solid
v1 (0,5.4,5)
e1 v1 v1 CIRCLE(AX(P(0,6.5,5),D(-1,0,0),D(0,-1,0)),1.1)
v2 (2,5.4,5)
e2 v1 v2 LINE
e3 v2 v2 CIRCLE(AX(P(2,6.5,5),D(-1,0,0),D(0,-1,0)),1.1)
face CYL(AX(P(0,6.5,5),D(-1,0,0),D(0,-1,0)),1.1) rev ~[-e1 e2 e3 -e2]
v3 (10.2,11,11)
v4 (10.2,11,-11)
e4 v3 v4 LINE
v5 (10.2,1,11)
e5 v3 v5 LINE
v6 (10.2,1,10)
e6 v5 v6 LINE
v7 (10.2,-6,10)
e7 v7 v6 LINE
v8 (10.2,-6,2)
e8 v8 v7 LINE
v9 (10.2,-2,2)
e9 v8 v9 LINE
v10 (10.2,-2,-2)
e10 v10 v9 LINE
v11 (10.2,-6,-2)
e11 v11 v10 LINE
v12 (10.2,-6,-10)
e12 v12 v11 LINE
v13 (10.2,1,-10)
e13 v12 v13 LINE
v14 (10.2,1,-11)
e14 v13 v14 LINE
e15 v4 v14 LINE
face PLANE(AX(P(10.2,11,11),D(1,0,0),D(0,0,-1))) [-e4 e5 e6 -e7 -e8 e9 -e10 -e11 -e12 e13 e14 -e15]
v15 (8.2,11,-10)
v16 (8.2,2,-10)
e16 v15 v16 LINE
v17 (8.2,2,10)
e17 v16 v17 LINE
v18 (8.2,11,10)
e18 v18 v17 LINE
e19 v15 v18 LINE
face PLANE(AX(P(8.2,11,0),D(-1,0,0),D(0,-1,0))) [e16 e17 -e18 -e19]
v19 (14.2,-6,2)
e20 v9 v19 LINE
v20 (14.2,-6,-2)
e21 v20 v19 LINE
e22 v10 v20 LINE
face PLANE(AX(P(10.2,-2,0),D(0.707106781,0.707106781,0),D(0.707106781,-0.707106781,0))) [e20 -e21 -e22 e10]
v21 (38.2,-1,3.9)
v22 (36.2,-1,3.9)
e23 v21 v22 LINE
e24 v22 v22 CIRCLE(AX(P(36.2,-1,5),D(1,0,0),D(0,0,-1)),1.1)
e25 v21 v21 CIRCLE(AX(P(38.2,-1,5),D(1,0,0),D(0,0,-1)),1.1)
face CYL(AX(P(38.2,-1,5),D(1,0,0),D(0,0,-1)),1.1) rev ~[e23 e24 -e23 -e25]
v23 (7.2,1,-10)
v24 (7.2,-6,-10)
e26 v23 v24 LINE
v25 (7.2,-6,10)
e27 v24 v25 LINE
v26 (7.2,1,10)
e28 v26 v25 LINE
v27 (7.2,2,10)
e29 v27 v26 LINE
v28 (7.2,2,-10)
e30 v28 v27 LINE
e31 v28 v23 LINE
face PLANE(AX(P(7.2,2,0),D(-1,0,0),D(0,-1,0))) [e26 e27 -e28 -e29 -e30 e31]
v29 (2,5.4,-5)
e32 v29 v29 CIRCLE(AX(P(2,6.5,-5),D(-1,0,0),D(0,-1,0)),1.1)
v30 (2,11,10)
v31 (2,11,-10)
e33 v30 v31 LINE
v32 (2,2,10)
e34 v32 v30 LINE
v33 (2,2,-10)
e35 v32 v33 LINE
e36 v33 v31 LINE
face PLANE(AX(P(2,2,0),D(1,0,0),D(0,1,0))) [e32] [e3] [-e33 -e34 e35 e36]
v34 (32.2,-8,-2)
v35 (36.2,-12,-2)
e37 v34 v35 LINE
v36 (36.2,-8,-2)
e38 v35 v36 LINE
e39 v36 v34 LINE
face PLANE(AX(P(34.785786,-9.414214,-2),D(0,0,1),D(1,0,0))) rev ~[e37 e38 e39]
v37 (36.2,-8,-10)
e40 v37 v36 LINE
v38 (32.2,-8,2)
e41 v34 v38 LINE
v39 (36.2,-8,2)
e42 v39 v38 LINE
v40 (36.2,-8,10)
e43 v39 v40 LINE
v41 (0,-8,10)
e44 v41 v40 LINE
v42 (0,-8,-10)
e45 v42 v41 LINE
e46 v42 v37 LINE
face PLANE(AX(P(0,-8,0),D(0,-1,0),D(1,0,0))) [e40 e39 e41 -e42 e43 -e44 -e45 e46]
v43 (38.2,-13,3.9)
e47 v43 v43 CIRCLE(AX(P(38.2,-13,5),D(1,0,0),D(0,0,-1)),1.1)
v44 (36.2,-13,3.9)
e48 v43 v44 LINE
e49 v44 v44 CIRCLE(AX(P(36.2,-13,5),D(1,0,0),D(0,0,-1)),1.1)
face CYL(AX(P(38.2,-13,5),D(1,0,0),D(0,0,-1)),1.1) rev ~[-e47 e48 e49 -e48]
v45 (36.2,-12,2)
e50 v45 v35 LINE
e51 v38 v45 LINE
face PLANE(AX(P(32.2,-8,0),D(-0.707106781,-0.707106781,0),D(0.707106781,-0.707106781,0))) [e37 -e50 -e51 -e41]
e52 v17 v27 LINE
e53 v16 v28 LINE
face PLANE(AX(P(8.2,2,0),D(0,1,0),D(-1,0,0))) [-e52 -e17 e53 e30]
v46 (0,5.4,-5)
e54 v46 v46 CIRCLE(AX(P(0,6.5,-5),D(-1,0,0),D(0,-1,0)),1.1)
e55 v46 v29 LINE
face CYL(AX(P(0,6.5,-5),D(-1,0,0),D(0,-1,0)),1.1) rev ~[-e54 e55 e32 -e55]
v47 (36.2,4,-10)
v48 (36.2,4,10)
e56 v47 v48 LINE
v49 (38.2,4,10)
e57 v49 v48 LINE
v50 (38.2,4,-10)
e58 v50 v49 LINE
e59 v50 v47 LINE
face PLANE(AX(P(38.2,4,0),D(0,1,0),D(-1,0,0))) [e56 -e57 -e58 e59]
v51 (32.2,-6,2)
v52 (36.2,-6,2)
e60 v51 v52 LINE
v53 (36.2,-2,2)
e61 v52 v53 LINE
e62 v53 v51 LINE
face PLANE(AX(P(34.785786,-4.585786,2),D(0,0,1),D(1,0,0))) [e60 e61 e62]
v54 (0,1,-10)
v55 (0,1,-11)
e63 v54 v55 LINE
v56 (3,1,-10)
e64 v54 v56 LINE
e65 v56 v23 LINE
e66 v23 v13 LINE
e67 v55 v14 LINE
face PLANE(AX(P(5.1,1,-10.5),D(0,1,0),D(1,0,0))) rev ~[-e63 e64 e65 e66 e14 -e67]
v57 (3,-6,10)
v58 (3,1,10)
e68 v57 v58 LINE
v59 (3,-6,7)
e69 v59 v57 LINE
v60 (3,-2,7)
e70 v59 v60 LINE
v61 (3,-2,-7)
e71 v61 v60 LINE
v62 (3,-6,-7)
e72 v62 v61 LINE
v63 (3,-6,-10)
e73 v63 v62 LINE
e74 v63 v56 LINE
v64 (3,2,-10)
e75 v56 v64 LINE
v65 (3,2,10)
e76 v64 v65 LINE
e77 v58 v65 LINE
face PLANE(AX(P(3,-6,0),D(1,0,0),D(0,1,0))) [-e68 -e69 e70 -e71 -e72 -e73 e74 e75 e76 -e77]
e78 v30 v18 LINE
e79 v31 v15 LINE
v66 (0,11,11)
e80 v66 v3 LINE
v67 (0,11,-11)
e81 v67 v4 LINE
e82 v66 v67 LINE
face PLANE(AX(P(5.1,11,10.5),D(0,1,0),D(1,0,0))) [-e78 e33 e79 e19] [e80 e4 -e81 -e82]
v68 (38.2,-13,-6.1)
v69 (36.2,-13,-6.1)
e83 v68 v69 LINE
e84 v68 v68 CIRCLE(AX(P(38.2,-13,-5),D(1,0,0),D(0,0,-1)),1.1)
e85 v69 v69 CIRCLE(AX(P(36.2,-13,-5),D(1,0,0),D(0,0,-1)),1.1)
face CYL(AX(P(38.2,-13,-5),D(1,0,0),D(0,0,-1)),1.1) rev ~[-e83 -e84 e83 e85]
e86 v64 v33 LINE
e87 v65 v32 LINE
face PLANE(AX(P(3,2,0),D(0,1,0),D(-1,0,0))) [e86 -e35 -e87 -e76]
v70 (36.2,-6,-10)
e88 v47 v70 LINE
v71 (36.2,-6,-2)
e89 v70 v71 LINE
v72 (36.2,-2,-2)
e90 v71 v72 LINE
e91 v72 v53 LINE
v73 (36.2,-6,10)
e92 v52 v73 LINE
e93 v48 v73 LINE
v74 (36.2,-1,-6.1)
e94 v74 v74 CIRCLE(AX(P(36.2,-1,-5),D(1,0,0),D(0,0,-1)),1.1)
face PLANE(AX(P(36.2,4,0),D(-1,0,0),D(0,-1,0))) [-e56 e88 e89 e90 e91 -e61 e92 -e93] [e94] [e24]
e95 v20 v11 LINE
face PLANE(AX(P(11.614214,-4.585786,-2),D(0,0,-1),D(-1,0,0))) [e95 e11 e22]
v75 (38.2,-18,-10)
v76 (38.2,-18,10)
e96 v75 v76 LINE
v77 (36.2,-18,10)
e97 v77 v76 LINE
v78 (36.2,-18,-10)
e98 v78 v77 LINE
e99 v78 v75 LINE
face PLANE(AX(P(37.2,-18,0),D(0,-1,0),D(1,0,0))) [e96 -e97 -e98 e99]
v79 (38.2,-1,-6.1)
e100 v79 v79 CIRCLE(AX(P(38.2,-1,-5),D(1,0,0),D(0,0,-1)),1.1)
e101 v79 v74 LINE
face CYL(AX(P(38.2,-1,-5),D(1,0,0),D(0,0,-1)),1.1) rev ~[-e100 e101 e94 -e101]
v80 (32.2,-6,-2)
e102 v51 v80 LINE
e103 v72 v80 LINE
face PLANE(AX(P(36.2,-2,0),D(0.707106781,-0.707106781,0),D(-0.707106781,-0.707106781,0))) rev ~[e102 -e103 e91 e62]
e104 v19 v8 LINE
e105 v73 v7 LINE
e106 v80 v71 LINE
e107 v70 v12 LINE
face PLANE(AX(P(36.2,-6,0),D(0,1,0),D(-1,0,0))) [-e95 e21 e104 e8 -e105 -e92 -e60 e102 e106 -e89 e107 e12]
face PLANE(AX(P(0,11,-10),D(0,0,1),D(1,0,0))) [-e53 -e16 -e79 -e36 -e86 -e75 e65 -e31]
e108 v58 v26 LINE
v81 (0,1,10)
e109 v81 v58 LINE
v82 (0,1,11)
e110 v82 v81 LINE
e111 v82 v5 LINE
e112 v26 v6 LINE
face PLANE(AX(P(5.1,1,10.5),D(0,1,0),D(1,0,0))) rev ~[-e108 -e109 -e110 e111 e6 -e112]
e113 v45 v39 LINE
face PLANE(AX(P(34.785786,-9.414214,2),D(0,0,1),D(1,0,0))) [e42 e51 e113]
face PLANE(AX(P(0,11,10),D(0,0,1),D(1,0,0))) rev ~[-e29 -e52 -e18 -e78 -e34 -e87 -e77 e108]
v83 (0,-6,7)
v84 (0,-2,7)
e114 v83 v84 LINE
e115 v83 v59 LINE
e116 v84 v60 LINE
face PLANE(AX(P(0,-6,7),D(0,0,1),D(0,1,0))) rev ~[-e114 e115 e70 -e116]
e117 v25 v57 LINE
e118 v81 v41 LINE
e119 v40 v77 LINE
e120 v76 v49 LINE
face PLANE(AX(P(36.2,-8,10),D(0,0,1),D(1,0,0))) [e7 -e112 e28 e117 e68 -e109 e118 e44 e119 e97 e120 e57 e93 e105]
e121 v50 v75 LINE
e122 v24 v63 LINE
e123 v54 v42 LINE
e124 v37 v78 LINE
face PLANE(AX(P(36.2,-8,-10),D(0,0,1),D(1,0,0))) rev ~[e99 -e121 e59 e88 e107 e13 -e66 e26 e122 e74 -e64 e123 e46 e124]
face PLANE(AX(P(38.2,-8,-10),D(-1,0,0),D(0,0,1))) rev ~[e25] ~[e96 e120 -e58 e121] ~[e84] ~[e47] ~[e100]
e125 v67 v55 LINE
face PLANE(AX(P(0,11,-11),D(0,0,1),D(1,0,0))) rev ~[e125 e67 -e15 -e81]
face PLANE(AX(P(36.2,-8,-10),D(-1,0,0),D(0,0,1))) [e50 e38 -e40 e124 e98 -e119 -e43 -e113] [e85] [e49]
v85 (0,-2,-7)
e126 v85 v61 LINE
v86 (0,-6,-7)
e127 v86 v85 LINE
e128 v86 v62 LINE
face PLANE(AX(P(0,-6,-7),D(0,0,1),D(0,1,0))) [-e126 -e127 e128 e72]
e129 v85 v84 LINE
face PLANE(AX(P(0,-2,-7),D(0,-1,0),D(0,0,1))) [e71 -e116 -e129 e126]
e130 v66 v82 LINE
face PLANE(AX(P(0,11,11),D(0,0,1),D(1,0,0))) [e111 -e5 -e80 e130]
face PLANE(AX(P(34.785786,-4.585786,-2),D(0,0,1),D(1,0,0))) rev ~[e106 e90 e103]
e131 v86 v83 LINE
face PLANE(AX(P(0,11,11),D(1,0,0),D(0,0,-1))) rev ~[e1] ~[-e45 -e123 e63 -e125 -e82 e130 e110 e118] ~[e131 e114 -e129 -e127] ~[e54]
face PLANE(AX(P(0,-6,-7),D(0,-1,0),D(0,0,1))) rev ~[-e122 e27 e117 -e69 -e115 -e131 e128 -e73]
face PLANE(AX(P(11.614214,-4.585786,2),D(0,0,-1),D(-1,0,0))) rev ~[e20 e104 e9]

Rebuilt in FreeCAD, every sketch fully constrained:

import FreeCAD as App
import Part
import Sketcher

V = App.Vector
Q = App.Units.Quantity


def add_polygon(sketch, points):
    """Adds a closed chain of lines whose ends are joined by coincident constraints."""
    first, n = sketch.GeometryCount, len(points)
    for a, b in zip(points, points[1:] + points[:1]):
        sketch.addGeometry(Part.LineSegment(App.Vector(*a, 0), App.Vector(*b, 0)), False)
    for i in range(n):
        sketch.addConstraint(Sketcher.Constraint("Coincident", first + i, 2, first + (i + 1) % n, 1))

doc = App.newDocument("Part")
body = doc.addObject("PartDesign::Body", "Body")

sketch1 = body.newObject("Sketcher::SketchObject", "Sketch")
sketch1.AttachmentSupport = (doc.getObject("XY_Plane"), [""])
sketch1.MapMode = "FlatFace"
add_polygon(sketch1, [(0, 11), (0, -8), (38.2, -8), (38.2, 4), (36.2, 4), (36.2, -6), (10.2, -6), (10.2, 11), (8.2, 11), (8.2, 2), (7.2, 2), (7.2, -6), (3, -6), (3, 2), (2, 2), (2, 11)])
sketch1.addConstraint(Sketcher.Constraint("Vertical", 0))
sketch1.addConstraint(Sketcher.Constraint("Horizontal", 1))
sketch1.addConstraint(Sketcher.Constraint("Vertical", 2))
sketch1.addConstraint(Sketcher.Constraint("Horizontal", 3))
sketch1.addConstraint(Sketcher.Constraint("Vertical", 4))
sketch1.addConstraint(Sketcher.Constraint("Horizontal", 5))
sketch1.addConstraint(Sketcher.Constraint("Vertical", 6))
sketch1.addConstraint(Sketcher.Constraint("Horizontal", 7))
sketch1.addConstraint(Sketcher.Constraint("Vertical", 8))
sketch1.addConstraint(Sketcher.Constraint("Horizontal", 9))
sketch1.addConstraint(Sketcher.Constraint("Vertical", 10))
sketch1.addConstraint(Sketcher.Constraint("Horizontal", 11))
sketch1.addConstraint(Sketcher.Constraint("Vertical", 12))
sketch1.addConstraint(Sketcher.Constraint("Horizontal", 13))
sketch1.addConstraint(Sketcher.Constraint("Vertical", 14))
sketch1.addConstraint(Sketcher.Constraint("Horizontal", 15))
sketch1.addConstraint(Sketcher.Constraint("PointOnObject", 0, 2, -2))
sketch1.addConstraint(Sketcher.Constraint("Horizontal", 5, 2, 10, 2))
sketch1.addConstraint(Sketcher.Constraint("Horizontal", 9, 2, 12, 2))
sketch1.addConstraint(Sketcher.Constraint("Horizontal", 7, 2, 14, 2))
sketch1.addConstraint(Sketcher.Constraint("Equal", 3, 7))
sketch1.addConstraint(Sketcher.Constraint("Equal", 9, 13))
sketch1.addConstraint(Sketcher.Constraint("Equal", 7, 15))
sketch1.addConstraint(Sketcher.Constraint("DistanceX", 3, 2, 3, 1, Q("2 mm")))
sketch1.addConstraint(Sketcher.Constraint("DistanceX", 5, 2, 5, 1, Q("26 mm")))
sketch1.addConstraint(Sketcher.Constraint("DistanceX", 9, 2, 9, 1, Q("1 mm")))
sketch1.addConstraint(Sketcher.Constraint("DistanceY", 0, 2, 0, 1, Q("19 mm")))
sketch1.addConstraint(Sketcher.Constraint("DistanceY", 2, 1, 2, 2, Q("12 mm")))
sketch1.addConstraint(Sketcher.Constraint("DistanceY", 4, 2, 4, 1, Q("10 mm")))
sketch1.addConstraint(Sketcher.Constraint("DistanceY", 8, 2, 8, 1, Q("9 mm")))
sketch1.addConstraint(Sketcher.Constraint("DistanceX", 1, 1, 1, 2, Q("38.2 mm")))
sketch1.addConstraint(Sketcher.Constraint("DistanceY", 0, 2, -1, 1, Q("8 mm")))
pad1 = body.newObject("PartDesign::Pad", "Pad")
pad1.Profile = sketch1
pad1.Length = 20
pad1.Midplane = True

sketch2 = body.newObject("Sketcher::SketchObject", "Sketch001")
sketch2.AttachmentSupport = (doc.getObject("YZ_Plane"), [""])
sketch2.MapMode = "FlatFace"
add_polygon(sketch2, [(-2, -7), (-6, -7), (-6, 7), (-2, 7)])
sketch2.addConstraint(Sketcher.Constraint("Horizontal", 0))
sketch2.addConstraint(Sketcher.Constraint("Vertical", 1))
sketch2.addConstraint(Sketcher.Constraint("Horizontal", 2))
sketch2.addConstraint(Sketcher.Constraint("Vertical", 3))
sketch2.addConstraint(Sketcher.Constraint("DistanceX", 0, 2, 0, 1, Q("4 mm")))
sketch2.addConstraint(Sketcher.Constraint("DistanceY", 1, 1, 1, 2, Q("14 mm")))
sketch2.addConstraint(Sketcher.Constraint("DistanceX", 0, 2, -1, 1, Q("6 mm")))
sketch2.addConstraint(Sketcher.Constraint("DistanceY", 0, 2, -1, 1, Q("7 mm")))
pocket1 = body.newObject("PartDesign::Pocket", "Pocket")
pocket1.Profile = sketch2
pocket1.Length = 3
pocket1.Reversed = True

sketch3 = body.newObject("Sketcher::SketchObject", "Sketch002")
sketch3.AttachmentSupport = (doc.getObject("YZ_Plane"), [""])
sketch3.MapMode = "FlatFace"
sketch3.addGeometry(Part.Circle(V(6.5, -5, 0), V(0, 0, 1), 1.1), False)
sketch3.addGeometry(Part.Circle(V(6.5, 5, 0), V(0, 0, 1), 1.1), False)
sketch3.addConstraint(Sketcher.Constraint("Equal", 0, 1))
sketch3.addConstraint(Sketcher.Constraint("Symmetric", 0, 3, 1, 3, -1))
sketch3.addConstraint(Sketcher.Constraint("Diameter", 0, Q("2.2 mm")))
sketch3.addConstraint(Sketcher.Constraint("DistanceY", 0, 3, -1, 1, Q("5 mm")))
sketch3.addConstraint(Sketcher.Constraint("DistanceX", -1, 1, 0, 3, Q("6.5 mm")))
pocket2 = body.newObject("PartDesign::Pocket", "Pocket001")
pocket2.Profile = sketch3
pocket2.Length = 5
pocket2.Reversed = True

sketch4 = body.newObject("Sketcher::SketchObject", "Sketch003")
sketch4.AttachmentSupport = (doc.getObject("XZ_Plane"), [""])
sketch4.MapMode = "FlatFace"
sketch4.AttachmentOffset = App.Placement(V(0, 0, 8), App.Rotation())
add_polygon(sketch4, [(36.2, 10), (36.2, -10), (38.2, -10), (38.2, 10)])
sketch4.addConstraint(Sketcher.Constraint("Vertical", 0))
sketch4.addConstraint(Sketcher.Constraint("Horizontal", 1))
sketch4.addConstraint(Sketcher.Constraint("Vertical", 2))
sketch4.addConstraint(Sketcher.Constraint("Horizontal", 3))
sketch4.addConstraint(Sketcher.Constraint("DistanceX", 1, 1, 1, 2, Q("2 mm")))
sketch4.addConstraint(Sketcher.Constraint("DistanceY", 0, 2, 0, 1, Q("20 mm")))
sketch4.addConstraint(Sketcher.Constraint("DistanceY", 0, 2, -1, 1, Q("10 mm")))
sketch4.addConstraint(Sketcher.Constraint("DistanceX", -1, 1, 0, 2, Q("36.2 mm")))
pad2 = body.newObject("PartDesign::Pad", "Pad001")
pad2.Profile = sketch4
pad2.Length = 10

sketch5 = body.newObject("Sketcher::SketchObject", "Sketch004")
sketch5.AttachmentSupport = (doc.getObject("XY_Plane"), [""])
sketch5.MapMode = "FlatFace"
add_polygon(sketch5, [(10.2, -6), (14.2, -6), (10.2, -2)])
add_polygon(sketch5, [(36.2, -6), (36.2, -2), (32.2, -6)])
add_polygon(sketch5, [(36.2, -8), (32.2, -8), (36.2, -12)])
sketch5.addConstraint(Sketcher.Constraint("Horizontal", 0))
sketch5.addConstraint(Sketcher.Constraint("Vertical", 2))
sketch5.addConstraint(Sketcher.Constraint("Vertical", 3))
sketch5.addConstraint(Sketcher.Constraint("Horizontal", 5))
sketch5.addConstraint(Sketcher.Constraint("Horizontal", 6))
sketch5.addConstraint(Sketcher.Constraint("Vertical", 8))
sketch5.addConstraint(Sketcher.Constraint("Perpendicular", 1, 4))
sketch5.addConstraint(Sketcher.Constraint("Perpendicular", 4, 7))
sketch5.addConstraint(Sketcher.Constraint("Horizontal", 1, 2, 3, 2))
sketch5.addConstraint(Sketcher.Constraint("Horizontal", 2, 2, 4, 2))
sketch5.addConstraint(Sketcher.Constraint("Vertical", 4, 2, 6, 2))
sketch5.addConstraint(Sketcher.Constraint("Vertical", 5, 2, 7, 2))
sketch5.addConstraint(Sketcher.Constraint("Equal", 0, 5))
sketch5.addConstraint(Sketcher.Constraint("DistanceX", 0, 1, 0, 2, Q("4 mm")))
sketch5.addConstraint(Sketcher.Constraint("DistanceY", 0, 2, -1, 1, Q("6 mm")))
sketch5.addConstraint(Sketcher.Constraint("DistanceY", 6, 2, -1, 1, Q("8 mm")))
sketch5.addConstraint(Sketcher.Constraint("DistanceX", 0, 2, 3, 2, Q("22 mm")))
sketch5.addConstraint(Sketcher.Constraint("DistanceX", -1, 1, 0, 2, Q("14.2 mm")))
pad3 = body.newObject("PartDesign::Pad", "Pad002")
pad3.Profile = sketch5
pad3.Length = 4
pad3.Midplane = True

sketch6 = body.newObject("Sketcher::SketchObject", "Sketch005")
sketch6.AttachmentSupport = (doc.getObject("YZ_Plane"), [""])
sketch6.MapMode = "FlatFace"
sketch6.AttachmentOffset = App.Placement(V(0, 0, 38.2), App.Rotation())
sketch6.addGeometry(Part.Circle(V(-1, 5, 0), V(0, 0, 1), 1.1), False)
sketch6.addGeometry(Part.Circle(V(-1, -5, 0), V(0, 0, 1), 1.1), False)
sketch6.addGeometry(Part.Circle(V(-13, 5, 0), V(0, 0, 1), 1.1), False)
sketch6.addGeometry(Part.Circle(V(-13, -5, 0), V(0, 0, 1), 1.1), False)
sketch6.addConstraint(Sketcher.Constraint("Equal", 0, 1))
sketch6.addConstraint(Sketcher.Constraint("Equal", 1, 2))
sketch6.addConstraint(Sketcher.Constraint("Equal", 2, 3))
sketch6.addConstraint(Sketcher.Constraint("Symmetric", 0, 3, 1, 3, -1))
sketch6.addConstraint(Sketcher.Constraint("Symmetric", 2, 3, 3, 3, -1))
sketch6.addConstraint(Sketcher.Constraint("Horizontal", 0, 3, 2, 3))
sketch6.addConstraint(Sketcher.Constraint("Diameter", 0, Q("2.2 mm")))
sketch6.addConstraint(Sketcher.Constraint("DistanceX", 0, 3, -1, 1, Q("1 mm")))
sketch6.addConstraint(Sketcher.Constraint("DistanceY", -1, 1, 0, 3, Q("5 mm")))
sketch6.addConstraint(Sketcher.Constraint("DistanceX", 2, 3, -1, 1, Q("13 mm")))
pocket3 = body.newObject("PartDesign::Pocket", "Pocket002")
pocket3.Profile = sketch6
pocket3.Length = 4

sketch7 = body.newObject("Sketcher::SketchObject", "Sketch006")
sketch7.AttachmentSupport = (doc.getObject("XZ_Plane"), [""])
sketch7.MapMode = "FlatFace"
sketch7.AttachmentOffset = App.Placement(V(0, 0, -11), App.Rotation())
add_polygon(sketch7, [(0, 10), (0, 11), (10.2, 11), (10.2, 10)])
add_polygon(sketch7, [(0, -11), (0, -10), (10.2, -10), (10.2, -11)])
sketch7.addConstraint(Sketcher.Constraint("Vertical", 0))
sketch7.addConstraint(Sketcher.Constraint("Horizontal", 1))
sketch7.addConstraint(Sketcher.Constraint("Vertical", 2))
sketch7.addConstraint(Sketcher.Constraint("Horizontal", 3))
sketch7.addConstraint(Sketcher.Constraint("Vertical", 4))
sketch7.addConstraint(Sketcher.Constraint("Horizontal", 5))
sketch7.addConstraint(Sketcher.Constraint("Vertical", 6))
sketch7.addConstraint(Sketcher.Constraint("Horizontal", 7))
sketch7.addConstraint(Sketcher.Constraint("Symmetric", 3, 2, 4, 2, -1, 1))
sketch7.addConstraint(Sketcher.Constraint("Symmetric", 1, 2, 6, 2, -1))
sketch7.addConstraint(Sketcher.Constraint("PointOnObject", 0, 2, -2))
sketch7.addConstraint(Sketcher.Constraint("DistanceY", 0, 1, 0, 2, Q("1 mm")))
sketch7.addConstraint(Sketcher.Constraint("DistanceX", 1, 1, 1, 2, Q("10.2 mm")))
sketch7.addConstraint(Sketcher.Constraint("DistanceY", -1, 1, 0, 2, Q("11 mm")))
pad4 = body.newObject("PartDesign::Pad", "Pad003")
pad4.Profile = sketch7
pad4.Length = 10

doc.recompute()
